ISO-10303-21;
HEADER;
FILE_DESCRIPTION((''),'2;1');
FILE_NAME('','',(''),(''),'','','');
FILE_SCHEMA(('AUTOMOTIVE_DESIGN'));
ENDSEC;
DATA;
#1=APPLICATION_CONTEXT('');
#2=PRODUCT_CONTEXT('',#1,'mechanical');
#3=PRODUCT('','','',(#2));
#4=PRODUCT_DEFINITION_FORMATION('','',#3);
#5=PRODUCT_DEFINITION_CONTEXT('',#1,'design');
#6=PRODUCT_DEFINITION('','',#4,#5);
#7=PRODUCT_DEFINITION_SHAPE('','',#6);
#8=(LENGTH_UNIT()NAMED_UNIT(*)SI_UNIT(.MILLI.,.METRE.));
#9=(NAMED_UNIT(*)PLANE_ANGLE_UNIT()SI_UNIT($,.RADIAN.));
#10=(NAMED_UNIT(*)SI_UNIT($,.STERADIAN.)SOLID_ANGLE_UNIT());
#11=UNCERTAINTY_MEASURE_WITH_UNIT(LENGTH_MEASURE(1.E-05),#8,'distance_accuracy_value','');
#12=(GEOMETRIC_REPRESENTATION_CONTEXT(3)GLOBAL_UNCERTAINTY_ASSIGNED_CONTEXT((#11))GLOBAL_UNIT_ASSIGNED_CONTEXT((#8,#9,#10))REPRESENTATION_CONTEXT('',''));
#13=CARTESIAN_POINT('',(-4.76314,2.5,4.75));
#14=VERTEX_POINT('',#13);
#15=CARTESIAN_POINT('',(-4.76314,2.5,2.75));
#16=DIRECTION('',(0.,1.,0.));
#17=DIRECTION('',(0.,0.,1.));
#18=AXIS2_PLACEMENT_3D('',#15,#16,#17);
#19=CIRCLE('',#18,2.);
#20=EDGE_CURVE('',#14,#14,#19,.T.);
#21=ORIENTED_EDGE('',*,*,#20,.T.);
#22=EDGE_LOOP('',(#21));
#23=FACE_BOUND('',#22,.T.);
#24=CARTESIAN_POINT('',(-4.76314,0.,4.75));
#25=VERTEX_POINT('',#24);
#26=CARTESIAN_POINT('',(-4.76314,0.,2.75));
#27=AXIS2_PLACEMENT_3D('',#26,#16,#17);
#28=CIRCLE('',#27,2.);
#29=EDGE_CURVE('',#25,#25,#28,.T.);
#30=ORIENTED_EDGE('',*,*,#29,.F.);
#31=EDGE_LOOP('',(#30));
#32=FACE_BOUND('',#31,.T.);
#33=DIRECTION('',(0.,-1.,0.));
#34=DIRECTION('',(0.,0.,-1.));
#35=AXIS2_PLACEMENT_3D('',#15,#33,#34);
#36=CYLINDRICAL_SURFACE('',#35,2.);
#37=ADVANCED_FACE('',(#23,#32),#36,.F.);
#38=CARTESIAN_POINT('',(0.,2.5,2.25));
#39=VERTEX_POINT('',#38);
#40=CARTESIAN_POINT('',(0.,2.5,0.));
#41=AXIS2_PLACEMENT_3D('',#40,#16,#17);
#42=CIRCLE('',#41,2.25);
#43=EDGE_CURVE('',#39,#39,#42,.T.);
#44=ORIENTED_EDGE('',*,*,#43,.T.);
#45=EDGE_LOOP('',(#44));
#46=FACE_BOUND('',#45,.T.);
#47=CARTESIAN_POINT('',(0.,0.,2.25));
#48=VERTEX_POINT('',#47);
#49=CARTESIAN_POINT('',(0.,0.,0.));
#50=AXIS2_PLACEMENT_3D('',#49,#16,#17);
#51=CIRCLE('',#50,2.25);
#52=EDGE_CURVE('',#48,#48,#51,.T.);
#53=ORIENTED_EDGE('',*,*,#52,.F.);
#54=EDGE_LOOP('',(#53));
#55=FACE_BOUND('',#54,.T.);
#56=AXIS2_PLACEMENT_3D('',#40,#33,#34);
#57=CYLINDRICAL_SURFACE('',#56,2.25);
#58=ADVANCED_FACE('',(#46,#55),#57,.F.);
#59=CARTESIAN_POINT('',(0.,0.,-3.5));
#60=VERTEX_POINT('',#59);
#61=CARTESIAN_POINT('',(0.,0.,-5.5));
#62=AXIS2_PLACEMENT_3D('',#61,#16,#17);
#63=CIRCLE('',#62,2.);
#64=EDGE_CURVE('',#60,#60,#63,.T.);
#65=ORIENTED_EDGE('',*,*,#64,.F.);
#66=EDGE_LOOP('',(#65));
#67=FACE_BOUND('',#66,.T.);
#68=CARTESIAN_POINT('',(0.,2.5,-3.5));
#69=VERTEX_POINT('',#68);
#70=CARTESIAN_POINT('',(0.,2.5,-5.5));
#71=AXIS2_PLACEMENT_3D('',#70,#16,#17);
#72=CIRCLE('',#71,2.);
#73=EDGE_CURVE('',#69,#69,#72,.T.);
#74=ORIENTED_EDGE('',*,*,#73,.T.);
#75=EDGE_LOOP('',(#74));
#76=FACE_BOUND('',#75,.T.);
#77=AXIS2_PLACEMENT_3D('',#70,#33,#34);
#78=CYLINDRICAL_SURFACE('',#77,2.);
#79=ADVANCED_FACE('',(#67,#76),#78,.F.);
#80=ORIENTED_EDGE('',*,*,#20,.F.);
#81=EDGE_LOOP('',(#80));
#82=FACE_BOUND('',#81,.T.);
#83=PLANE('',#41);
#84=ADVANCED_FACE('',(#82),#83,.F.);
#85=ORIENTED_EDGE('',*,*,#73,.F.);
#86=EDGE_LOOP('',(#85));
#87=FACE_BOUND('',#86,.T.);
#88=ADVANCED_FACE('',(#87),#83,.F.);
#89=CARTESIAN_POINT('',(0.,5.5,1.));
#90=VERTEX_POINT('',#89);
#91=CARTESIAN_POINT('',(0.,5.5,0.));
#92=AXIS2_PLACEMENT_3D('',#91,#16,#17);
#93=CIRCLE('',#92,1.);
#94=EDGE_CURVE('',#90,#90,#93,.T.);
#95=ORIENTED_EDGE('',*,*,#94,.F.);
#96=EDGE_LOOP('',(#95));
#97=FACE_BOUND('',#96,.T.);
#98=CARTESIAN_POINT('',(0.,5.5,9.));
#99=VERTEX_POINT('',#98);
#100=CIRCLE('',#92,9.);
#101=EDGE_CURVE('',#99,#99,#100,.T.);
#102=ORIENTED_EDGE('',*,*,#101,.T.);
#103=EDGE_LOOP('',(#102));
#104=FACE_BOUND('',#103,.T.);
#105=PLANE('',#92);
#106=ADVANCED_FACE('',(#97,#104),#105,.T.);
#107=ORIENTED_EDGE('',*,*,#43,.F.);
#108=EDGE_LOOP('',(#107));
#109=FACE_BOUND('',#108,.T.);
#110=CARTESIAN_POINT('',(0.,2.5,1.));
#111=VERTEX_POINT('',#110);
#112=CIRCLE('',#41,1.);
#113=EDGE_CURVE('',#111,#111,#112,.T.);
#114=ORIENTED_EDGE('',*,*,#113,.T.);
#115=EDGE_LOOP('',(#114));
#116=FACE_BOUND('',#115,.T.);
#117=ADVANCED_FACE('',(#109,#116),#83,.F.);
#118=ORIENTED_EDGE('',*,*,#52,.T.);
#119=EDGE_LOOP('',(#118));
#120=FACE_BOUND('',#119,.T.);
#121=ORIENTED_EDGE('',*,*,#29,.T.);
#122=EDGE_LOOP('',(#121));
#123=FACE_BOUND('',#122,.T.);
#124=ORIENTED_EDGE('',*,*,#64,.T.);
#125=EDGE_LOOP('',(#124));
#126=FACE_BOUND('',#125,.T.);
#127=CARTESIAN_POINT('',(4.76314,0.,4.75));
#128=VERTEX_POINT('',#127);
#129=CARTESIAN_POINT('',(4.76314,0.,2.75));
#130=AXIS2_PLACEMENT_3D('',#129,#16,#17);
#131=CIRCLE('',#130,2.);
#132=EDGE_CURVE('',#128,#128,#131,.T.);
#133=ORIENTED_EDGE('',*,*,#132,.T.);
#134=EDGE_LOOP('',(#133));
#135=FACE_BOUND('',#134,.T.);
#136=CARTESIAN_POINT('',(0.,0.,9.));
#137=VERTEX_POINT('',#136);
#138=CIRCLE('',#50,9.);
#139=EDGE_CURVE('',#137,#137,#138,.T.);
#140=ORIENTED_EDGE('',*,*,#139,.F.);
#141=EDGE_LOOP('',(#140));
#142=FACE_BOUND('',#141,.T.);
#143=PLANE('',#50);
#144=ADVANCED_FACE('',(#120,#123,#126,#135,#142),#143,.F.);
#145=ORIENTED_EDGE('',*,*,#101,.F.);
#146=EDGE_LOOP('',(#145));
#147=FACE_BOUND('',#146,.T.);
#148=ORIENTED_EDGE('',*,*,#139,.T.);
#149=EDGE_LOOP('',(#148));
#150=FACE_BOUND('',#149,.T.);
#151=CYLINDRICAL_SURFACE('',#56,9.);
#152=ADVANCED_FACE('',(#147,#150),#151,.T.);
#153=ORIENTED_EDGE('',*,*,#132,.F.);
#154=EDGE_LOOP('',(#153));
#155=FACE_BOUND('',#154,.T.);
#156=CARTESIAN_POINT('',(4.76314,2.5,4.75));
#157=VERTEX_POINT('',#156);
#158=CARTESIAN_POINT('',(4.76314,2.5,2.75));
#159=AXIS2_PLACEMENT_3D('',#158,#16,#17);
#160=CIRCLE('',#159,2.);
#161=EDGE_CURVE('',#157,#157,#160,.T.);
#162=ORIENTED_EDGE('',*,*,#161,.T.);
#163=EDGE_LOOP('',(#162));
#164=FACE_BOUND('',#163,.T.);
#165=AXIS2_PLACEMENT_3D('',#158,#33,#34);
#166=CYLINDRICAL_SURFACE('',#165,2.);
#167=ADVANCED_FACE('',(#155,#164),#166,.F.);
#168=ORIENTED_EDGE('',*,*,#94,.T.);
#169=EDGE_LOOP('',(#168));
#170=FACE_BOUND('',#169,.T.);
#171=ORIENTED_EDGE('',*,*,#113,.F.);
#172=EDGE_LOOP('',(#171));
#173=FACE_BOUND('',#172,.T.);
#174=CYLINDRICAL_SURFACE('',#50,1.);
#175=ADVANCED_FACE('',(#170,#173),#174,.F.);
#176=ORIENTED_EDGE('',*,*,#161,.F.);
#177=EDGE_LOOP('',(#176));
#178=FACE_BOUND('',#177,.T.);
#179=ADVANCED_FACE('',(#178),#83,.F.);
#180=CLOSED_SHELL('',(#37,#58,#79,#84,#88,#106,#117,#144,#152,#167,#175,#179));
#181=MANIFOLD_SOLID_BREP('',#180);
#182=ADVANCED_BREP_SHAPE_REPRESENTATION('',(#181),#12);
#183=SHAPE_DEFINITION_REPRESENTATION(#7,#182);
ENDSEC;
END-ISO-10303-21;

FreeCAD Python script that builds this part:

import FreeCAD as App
import Part
import Sketcher

V = App.Vector
Q = App.Units.Quantity

doc = App.newDocument("Part")
body = doc.addObject("PartDesign::Body", "Body")

sketch1 = body.newObject("Sketcher::SketchObject", "Sketch")
sketch1.AttachmentSupport = (doc.getObject("XZ_Plane"), [""])
sketch1.MapMode = "FlatFace"
sketch1.addGeometry(Part.Circle(V(0, 0, 0), V(0, 0, 1), 9), False)
sketch1.addGeometry(Part.Circle(V(-4.8, 2.8, 0), V(0, 0, 1), 2), False)
sketch1.addGeometry(Part.Circle(V(4.8, 2.8, 0), V(0, 0, 1), 2), False)
sketch1.addGeometry(Part.Circle(V(0, 0, 0), V(0, 0, 1), 2.2), False)
sketch1.addGeometry(Part.Circle(V(0, -5.5, 0), V(0, 0, 1), 2), False)
sketch1.addConstraint(Sketcher.Constraint("Coincident", 0, 3, -1, 1))
sketch1.addConstraint(Sketcher.Constraint("Coincident", 3, 3, -1, 1))
sketch1.addConstraint(Sketcher.Constraint("Equal", 1, 2))
sketch1.addConstraint(Sketcher.Constraint("Equal", 2, 4))
sketch1.addConstraint(Sketcher.Constraint("Symmetric", 1, 3, 2, 3, -2))
sketch1.addConstraint(Sketcher.Constraint("PointOnObject", 4, 3, -2))
sketch1.addConstraint(Sketcher.Constraint("Diameter", 0, Q("18 mm")))
sketch1.addConstraint(Sketcher.Constraint("Diameter", 1, Q("4 mm")))
sketch1.addConstraint(Sketcher.Constraint("Diameter", 3, Q("4.5 mm")))
sketch1.addConstraint(Sketcher.Constraint("DistanceY", 4, 3, -1, 1, Q("5.5 mm")))
sketch1.addConstraint(Sketcher.Constraint("DistanceY", -1, 1, 1, 3, Q("2.75 mm")))
sketch1.addConstraint(Sketcher.Constraint("DistanceX", 1, 3, -1, 1, Q("4.76314 mm")))
pad1 = body.newObject("PartDesign::Pad", "Pad")
pad1.Profile = sketch1
pad1.Length = 2.5
pad1.Reversed = True

sketch2 = body.newObject("Sketcher::SketchObject", "Sketch001")
sketch2.AttachmentSupport = (doc.getObject("XZ_Plane"), [""])
sketch2.MapMode = "FlatFace"
sketch2.AttachmentOffset = App.Placement(V(0, 0, -2.5), App.Rotation())
sketch2.addGeometry(Part.Circle(V(0, 0, 0), V(0, 0, 1), 9), False)
sketch2.addConstraint(Sketcher.Constraint("Coincident", 0, 3, -1, 1))
sketch2.addConstraint(Sketcher.Constraint("Diameter", 0, Q("18 mm")))
pad2 = body.newObject("PartDesign::Pad", "Pad001")
pad2.Profile = sketch2
pad2.Length = 3
pad2.Reversed = True

sketch3 = body.newObject("Sketcher::SketchObject", "Sketch002")
sketch3.AttachmentSupport = (doc.getObject("XZ_Plane"), [""])
sketch3.MapMode = "FlatFace"
sketch3.AttachmentOffset = App.Placement(V(0, 0, -5.5), App.Rotation())
sketch3.addGeometry(Part.Circle(V(0, 0, 0), V(0, 0, 1), 1), False)
sketch3.addConstraint(Sketcher.Constraint("Coincident", 0, 3, -1, 1))
sketch3.addConstraint(Sketcher.Constraint("Diameter", 0, Q("2 mm")))
pocket1 = body.newObject("PartDesign::Pocket", "Pocket")
pocket1.Profile = sketch3
pocket1.Type = "ThroughAll"
pocket1.Reversed = True

doc.recompute()
